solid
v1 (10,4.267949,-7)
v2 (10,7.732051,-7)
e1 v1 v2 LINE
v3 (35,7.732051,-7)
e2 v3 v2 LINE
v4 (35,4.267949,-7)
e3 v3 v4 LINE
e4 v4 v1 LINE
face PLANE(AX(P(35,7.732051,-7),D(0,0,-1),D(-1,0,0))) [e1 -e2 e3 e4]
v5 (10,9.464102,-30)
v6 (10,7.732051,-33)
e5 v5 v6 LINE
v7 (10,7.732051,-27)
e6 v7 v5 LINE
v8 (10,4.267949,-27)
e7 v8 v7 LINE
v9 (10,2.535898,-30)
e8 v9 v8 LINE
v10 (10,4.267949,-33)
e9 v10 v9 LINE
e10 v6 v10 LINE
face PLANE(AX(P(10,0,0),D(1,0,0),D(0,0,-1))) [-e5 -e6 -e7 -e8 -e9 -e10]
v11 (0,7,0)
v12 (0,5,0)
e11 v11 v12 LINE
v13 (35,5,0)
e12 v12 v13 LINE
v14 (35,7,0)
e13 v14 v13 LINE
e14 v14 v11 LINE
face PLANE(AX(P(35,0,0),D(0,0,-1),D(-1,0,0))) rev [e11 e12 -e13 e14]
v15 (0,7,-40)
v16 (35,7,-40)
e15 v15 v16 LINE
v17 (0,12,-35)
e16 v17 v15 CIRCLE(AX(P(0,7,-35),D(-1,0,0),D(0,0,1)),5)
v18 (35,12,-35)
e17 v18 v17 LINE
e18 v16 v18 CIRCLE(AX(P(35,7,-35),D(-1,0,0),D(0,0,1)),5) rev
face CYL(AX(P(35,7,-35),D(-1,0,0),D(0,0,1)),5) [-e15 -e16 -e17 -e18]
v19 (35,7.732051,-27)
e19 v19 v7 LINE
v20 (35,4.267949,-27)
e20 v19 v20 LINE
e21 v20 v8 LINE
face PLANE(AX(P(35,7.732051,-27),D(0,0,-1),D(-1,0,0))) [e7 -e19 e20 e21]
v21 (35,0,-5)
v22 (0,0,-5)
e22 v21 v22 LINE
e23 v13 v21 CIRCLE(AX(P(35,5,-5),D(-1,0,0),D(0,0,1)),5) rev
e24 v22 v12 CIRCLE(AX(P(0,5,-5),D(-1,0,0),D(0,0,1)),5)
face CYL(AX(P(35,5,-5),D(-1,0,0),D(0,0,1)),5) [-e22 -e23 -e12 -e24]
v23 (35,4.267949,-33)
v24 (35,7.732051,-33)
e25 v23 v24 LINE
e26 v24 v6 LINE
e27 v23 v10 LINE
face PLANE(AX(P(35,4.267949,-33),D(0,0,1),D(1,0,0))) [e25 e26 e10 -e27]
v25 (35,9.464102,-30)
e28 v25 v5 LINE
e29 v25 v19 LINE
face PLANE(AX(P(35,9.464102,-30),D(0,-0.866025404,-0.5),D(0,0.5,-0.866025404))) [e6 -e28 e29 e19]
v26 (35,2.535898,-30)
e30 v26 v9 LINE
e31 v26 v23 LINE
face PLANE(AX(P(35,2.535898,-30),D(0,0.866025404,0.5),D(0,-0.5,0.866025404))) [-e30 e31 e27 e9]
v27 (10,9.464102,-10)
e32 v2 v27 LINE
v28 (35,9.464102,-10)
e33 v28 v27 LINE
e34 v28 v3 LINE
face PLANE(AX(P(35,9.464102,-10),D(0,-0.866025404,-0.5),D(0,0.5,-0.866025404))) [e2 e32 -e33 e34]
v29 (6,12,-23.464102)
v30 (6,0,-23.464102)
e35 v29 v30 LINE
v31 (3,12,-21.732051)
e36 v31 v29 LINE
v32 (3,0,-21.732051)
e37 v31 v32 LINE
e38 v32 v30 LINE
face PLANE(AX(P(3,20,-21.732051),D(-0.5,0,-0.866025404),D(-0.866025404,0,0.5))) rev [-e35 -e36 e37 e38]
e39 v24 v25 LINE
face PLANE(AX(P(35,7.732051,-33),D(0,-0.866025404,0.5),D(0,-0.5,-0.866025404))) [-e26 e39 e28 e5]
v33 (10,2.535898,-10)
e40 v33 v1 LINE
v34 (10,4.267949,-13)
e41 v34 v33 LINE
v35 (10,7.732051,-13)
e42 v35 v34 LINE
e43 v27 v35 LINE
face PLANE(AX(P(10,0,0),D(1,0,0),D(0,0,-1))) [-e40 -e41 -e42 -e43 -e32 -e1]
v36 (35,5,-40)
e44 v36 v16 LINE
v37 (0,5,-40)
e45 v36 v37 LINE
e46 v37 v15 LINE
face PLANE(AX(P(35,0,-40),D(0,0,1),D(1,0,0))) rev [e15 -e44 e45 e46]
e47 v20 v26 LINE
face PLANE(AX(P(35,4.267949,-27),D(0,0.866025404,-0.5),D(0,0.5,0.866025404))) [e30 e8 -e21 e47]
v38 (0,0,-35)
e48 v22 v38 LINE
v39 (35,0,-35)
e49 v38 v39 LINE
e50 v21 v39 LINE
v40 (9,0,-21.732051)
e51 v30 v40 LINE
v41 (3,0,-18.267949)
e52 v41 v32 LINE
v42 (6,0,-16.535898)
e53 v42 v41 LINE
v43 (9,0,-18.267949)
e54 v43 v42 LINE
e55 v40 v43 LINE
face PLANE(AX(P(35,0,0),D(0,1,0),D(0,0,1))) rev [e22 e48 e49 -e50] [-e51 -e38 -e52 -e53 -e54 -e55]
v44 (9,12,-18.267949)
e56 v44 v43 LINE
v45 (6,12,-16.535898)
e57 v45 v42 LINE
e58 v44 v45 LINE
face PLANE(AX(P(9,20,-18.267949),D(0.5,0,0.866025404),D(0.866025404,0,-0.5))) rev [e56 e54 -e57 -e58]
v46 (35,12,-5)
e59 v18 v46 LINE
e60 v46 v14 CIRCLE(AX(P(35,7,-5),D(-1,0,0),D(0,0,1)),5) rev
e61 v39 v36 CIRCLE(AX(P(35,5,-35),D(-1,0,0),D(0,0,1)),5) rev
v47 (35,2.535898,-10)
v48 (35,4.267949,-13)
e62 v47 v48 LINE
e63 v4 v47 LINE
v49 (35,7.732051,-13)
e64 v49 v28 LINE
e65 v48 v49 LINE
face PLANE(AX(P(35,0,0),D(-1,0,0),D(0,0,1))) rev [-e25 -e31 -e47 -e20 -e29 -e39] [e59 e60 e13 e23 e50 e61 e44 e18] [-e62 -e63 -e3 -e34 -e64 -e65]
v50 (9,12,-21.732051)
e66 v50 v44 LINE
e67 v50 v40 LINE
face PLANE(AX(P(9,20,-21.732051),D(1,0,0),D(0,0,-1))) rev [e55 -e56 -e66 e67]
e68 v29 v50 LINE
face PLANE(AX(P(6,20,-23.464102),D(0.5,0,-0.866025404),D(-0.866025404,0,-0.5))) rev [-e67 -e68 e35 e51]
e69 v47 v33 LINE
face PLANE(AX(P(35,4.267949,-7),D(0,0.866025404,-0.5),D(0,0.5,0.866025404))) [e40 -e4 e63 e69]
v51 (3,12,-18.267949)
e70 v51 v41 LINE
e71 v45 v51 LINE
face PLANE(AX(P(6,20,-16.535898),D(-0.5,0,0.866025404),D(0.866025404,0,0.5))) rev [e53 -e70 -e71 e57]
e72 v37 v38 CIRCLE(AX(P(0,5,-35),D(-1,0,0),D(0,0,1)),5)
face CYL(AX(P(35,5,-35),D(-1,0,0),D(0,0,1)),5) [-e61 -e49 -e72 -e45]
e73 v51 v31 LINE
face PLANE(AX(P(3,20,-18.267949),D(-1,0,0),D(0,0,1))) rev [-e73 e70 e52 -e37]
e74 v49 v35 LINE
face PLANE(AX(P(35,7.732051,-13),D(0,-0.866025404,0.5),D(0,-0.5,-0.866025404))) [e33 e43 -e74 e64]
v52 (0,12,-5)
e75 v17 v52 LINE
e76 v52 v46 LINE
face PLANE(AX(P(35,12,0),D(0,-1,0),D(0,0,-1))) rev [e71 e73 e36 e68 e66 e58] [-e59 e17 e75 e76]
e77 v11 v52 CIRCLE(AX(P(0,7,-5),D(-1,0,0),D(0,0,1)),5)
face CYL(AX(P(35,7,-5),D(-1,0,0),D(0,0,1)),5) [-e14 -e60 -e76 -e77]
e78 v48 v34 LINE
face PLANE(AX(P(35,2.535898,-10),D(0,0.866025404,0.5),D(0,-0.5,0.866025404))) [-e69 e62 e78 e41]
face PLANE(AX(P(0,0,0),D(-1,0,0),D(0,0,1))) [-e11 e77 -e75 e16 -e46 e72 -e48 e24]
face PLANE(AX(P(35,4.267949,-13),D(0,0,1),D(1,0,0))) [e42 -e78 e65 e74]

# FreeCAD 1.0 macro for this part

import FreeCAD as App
import Part
import Sketcher

V = App.Vector
Q = App.Units.Quantity


def edges_at(feature, points):
    """Names of the edges that pass closest to the given points."""
    edges = feature.Shape.Edges
    near = lambda p: min(range(len(edges)), key=lambda i: edges[i].distToShape(Part.Vertex(*p))[0])
    return sorted({f"Edge{near(p) + 1}" for p in points})

doc = App.newDocument("Part")
body = doc.addObject("PartDesign::Body", "Body")

sketch1 = body.newObject("Sketcher::SketchObject", "Sketch")
sketch1.AttachmentSupport = (doc.getObject("YZ_Plane"), [""])
sketch1.MapMode = "FlatFace"
sketch1.addGeometry([
    Part.LineSegment(V(12, 0, 0), V(0, 0, 0)),
    Part.LineSegment(V(0, 0, 0), V(0, -40, 0)),
    Part.LineSegment(V(0, -40, 0), V(12, -40, 0)),
    Part.LineSegment(V(12, -40, 0), V(12, 0, 0)),
    Part.LineSegment(V(7.732051, -7, 0), V(9.464102, -10, 0)),
    Part.LineSegment(V(9.464102, -10, 0), V(7.732051, -13, 0)),
    Part.LineSegment(V(7.732051, -13, 0), V(4.267949, -13, 0)),
    Part.LineSegment(V(4.267949, -13, 0), V(2.535898, -10, 0)),
    Part.LineSegment(V(2.535898, -10, 0), V(4.267949, -7, 0)),
    Part.LineSegment(V(4.267949, -7, 0), V(7.732051, -7, 0)),
    Part.LineSegment(V(7.732051, -27, 0), V(9.464102, -30, 0)),
    Part.LineSegment(V(9.464102, -30, 0), V(7.732051, -33, 0)),
    Part.LineSegment(V(7.732051, -33, 0), V(4.267949, -33, 0)),
    Part.LineSegment(V(4.267949, -33, 0), V(2.535898, -30, 0)),
    Part.LineSegment(V(2.535898, -30, 0), V(4.267949, -27, 0)),
    Part.LineSegment(V(4.267949, -27, 0), V(7.732051, -27, 0)),
], False)
sketch1.addConstraint([
    Sketcher.Constraint("Coincident", 0, 2, 1, 1),
    Sketcher.Constraint("Coincident", 1, 2, 2, 1),
    Sketcher.Constraint("Coincident", 2, 2, 3, 1),
    Sketcher.Constraint("Coincident", 3, 2, 0, 1),
    Sketcher.Constraint("Coincident", 4, 2, 5, 1),
    Sketcher.Constraint("Coincident", 5, 2, 6, 1),
    Sketcher.Constraint("Coincident", 6, 2, 7, 1),
    Sketcher.Constraint("Coincident", 7, 2, 8, 1),
    Sketcher.Constraint("Coincident", 8, 2, 9, 1),
    Sketcher.Constraint("Coincident", 9, 2, 4, 1),
    Sketcher.Constraint("Coincident", 10, 2, 11, 1),
    Sketcher.Constraint("Coincident", 11, 2, 12, 1),
    Sketcher.Constraint("Coincident", 12, 2, 13, 1),
    Sketcher.Constraint("Coincident", 13, 2, 14, 1),
    Sketcher.Constraint("Coincident", 14, 2, 15, 1),
    Sketcher.Constraint("Coincident", 15, 2, 10, 1),
    Sketcher.Constraint("Horizontal", 0),
    Sketcher.Constraint("Vertical", 1),
    Sketcher.Constraint("Horizontal", 2),
    Sketcher.Constraint("Vertical", 3),
    Sketcher.Constraint("Horizontal", 6),
    Sketcher.Constraint("Horizontal", 9),
    Sketcher.Constraint("Horizontal", 12),
    Sketcher.Constraint("Horizontal", 15),
    Sketcher.Constraint("Coincident", 0, 2, -1, 1),
    Sketcher.Constraint("Parallel", 4, 7),
    Sketcher.Constraint("Parallel", 5, 8),
    Sketcher.Constraint("Parallel", 7, 10),
    Sketcher.Constraint("Parallel", 8, 11),
    Sketcher.Constraint("Parallel", 10, 13),
    Sketcher.Constraint("Parallel", 11, 14),
    Sketcher.Constraint("Horizontal", 4, 2, 7, 2),
    Sketcher.Constraint("Horizontal", 10, 2, 13, 2),
    Sketcher.Constraint("Vertical", 6, 2, 8, 2),
    Sketcher.Constraint("Vertical", 5, 2, 9, 2),
    Sketcher.Constraint("Vertical", 4, 2, 10, 2),
    Sketcher.Constraint("Vertical", 9, 2, 11, 2),
    Sketcher.Constraint("Vertical", 8, 2, 12, 2),
    Sketcher.Constraint("Vertical", 12, 2, 14, 2),
    Sketcher.Constraint("DistanceX", 0, 2, 0, 1, 12.0),
    Sketcher.Constraint("DistanceY", 1, 2, 1, 1, 40.0),
    Sketcher.Constraint("Angle", 4, Q("-60 deg")),
    Sketcher.Constraint("DistanceY", 4, 2, -1, 1, 10.0),
    Sketcher.Constraint("DistanceY", 5, 2, -1, 1, 13.0),
    Sketcher.Constraint("DistanceY", 10, 2, -1, 1, 30.0),
    Sketcher.Constraint("DistanceX", 6, 2, 6, 1, 3.464102),
    Sketcher.Constraint("DistanceX", -1, 1, 4, 2, 9.464102),
])
pad1 = body.newObject("PartDesign::Pad", "Pad")
pad1.Profile = sketch1
pad1.Length = 35
doc.recompute()

fillet = body.newObject("PartDesign::Fillet", "Fillet")
fillet.Base = (pad1, edges_at(pad1, [
    (17.5, 12, 0),
    (17.5, 12, -40),
    (17.5, 0, -40),
    (17.5, 0, 0),
]))
fillet.Radius = 5

sketch2 = body.newObject("Sketcher::SketchObject", "Sketch001")
sketch2.AttachmentSupport = (doc.getObject("XZ_Plane"), [""])
sketch2.MapMode = "FlatFace"
sketch2.addGeometry([
    Part.LineSegment(V(6, -16.535898, 0), V(3, -18.267949, 0)),
    Part.LineSegment(V(3, -18.267949, 0), V(3, -21.732051, 0)),
    Part.LineSegment(V(3, -21.732051, 0), V(6, -23.464102, 0)),
    Part.LineSegment(V(6, -23.464102, 0), V(9, -21.732051, 0)),
    Part.LineSegment(V(9, -21.732051, 0), V(9, -18.267949, 0)),
    Part.LineSegment(V(9, -18.267949, 0), V(6, -16.535898, 0)),
], False)
sketch2.addConstraint([
    Sketcher.Constraint("Coincident", 0, 2, 1, 1),
    Sketcher.Constraint("Coincident", 1, 2, 2, 1),
    Sketcher.Constraint("Coincident", 2, 2, 3, 1),
    Sketcher.Constraint("Coincident", 3, 2, 4, 1),
    Sketcher.Constraint("Coincident", 4, 2, 5, 1),
    Sketcher.Constraint("Coincident", 5, 2, 0, 1),
    Sketcher.Constraint("Vertical", 1),
    Sketcher.Constraint("Vertical", 4),
    Sketcher.Constraint("Parallel", 0, 3),
    Sketcher.Constraint("Parallel", 2, 5),
    Sketcher.Constraint("Horizontal", 1, 2, 3, 2),
    Sketcher.Constraint("Horizontal", 0, 2, 4, 2),
    Sketcher.Constraint("Vertical", 2, 2, 5, 2),
    Sketcher.Constraint("Angle", 0, Q("-150 deg")),
    Sketcher.Constraint("DistanceX", -1, 1, 0, 2, 3.0),
    Sketcher.Constraint("DistanceX", -1, 1, 2, 2, 6.0),
    Sketcher.Constraint("DistanceY", 1, 2, 1, 1, 3.464102),
    Sketcher.Constraint("DistanceY", 2, 2, -1, 1, 23.464102),
])
pocket1 = body.newObject("PartDesign::Pocket", "Pocket")
pocket1.Profile = sketch2
pocket1.Length = 20

sketch3 = body.newObject("Sketcher::SketchObject", "Sketch002")
sketch3.AttachmentSupport = (doc.getObject("YZ_Plane"), [""])
sketch3.MapMode = "FlatFace"
sketch3.addGeometry([
    Part.LineSegment(V(7.732051, -27, 0), V(9.464102, -30, 0)),
    Part.LineSegment(V(9.464102, -30, 0), V(7.732051, -33, 0)),
    Part.LineSegment(V(7.732051, -33, 0), V(4.267949, -33, 0)),
    Part.LineSegment(V(4.267949, -33, 0), V(2.535898, -30, 0)),
    Part.LineSegment(V(2.535898, -30, 0), V(4.267949, -27, 0)),
    Part.LineSegment(V(4.267949, -27, 0), V(7.732051, -27, 0)),
    Part.LineSegment(V(4.267949, -7, 0), V(7.732051, -7, 0)),
    Part.LineSegment(V(7.732051, -7, 0), V(9.464102, -10, 0)),
    Part.LineSegment(V(9.464102, -10, 0), V(7.732051, -13, 0)),
    Part.LineSegment(V(7.732051, -13, 0), V(4.267949, -13, 0)),
    Part.LineSegment(V(4.267949, -13, 0), V(2.535898, -10, 0)),
    Part.LineSegment(V(2.535898, -10, 0), V(4.267949, -7, 0)),
], False)
sketch3.addConstraint([
    Sketcher.Constraint("Coincident", 0, 2, 1, 1),
    Sketcher.Constraint("Coincident", 1, 2, 2, 1),
    Sketcher.Constraint("Coincident", 2, 2, 3, 1),
    Sketcher.Constraint("Coincident", 3, 2, 4, 1),
    Sketcher.Constraint("Coincident", 4, 2, 5, 1),
    Sketcher.Constraint("Coincident", 5, 2, 0, 1),
    Sketcher.Constraint("Coincident", 6, 2, 7, 1),
    Sketcher.Constraint("Coincident", 7, 2, 8, 1),
    Sketcher.Constraint("Coincident", 8, 2, 9, 1),
    Sketcher.Constraint("Coincident", 9, 2, 10, 1),
    Sketcher.Constraint("Coincident", 10, 2, 11, 1),
    Sketcher.Constraint("Coincident", 11, 2, 6, 1),
    Sketcher.Constraint("Horizontal", 2),
    Sketcher.Constraint("Horizontal", 5),
    Sketcher.Constraint("Horizontal", 6),
    Sketcher.Constraint("Horizontal", 9),
    Sketcher.Constraint("Parallel", 0, 3),
    Sketcher.Constraint("Parallel", 1, 4),
    Sketcher.Constraint("Parallel", 3, 7),
    Sketcher.Constraint("Parallel", 4, 8),
    Sketcher.Constraint("Parallel", 7, 10),
    Sketcher.Constraint("Parallel", 8, 11),
    Sketcher.Constraint("Horizontal", 0, 2, 3, 2),
    Sketcher.Constraint("Horizontal", 7, 2, 10, 2),
    Sketcher.Constraint("Vertical", 2, 2, 4, 2),
    Sketcher.Constraint("Vertical", 1, 2, 5, 2),
    Sketcher.Constraint("Vertical", 5, 2, 6, 2),
    Sketcher.Constraint("Vertical", 0, 2, 7, 2),
    Sketcher.Constraint("Vertical", 6, 2, 8, 2),
    Sketcher.Constraint("Vertical", 4, 2, 9, 2),
    Sketcher.Constraint("Angle", 0, Q("-60 deg")),
    Sketcher.Constraint("DistanceY", 0, 2, -1, 1, 30.0),
    Sketcher.Constraint("DistanceY", 1, 2, -1, 1, 33.0),
    Sketcher.Constraint("DistanceY", 6, 2, -1, 1, 7.0),
    Sketcher.Constraint("DistanceX", 2, 2, 2, 1, 3.464102),
    Sketcher.Constraint("DistanceX", -1, 1, 0, 2, 9.464102),
])
pad2 = body.newObject("PartDesign::Pad", "Pad001")
pad2.Profile = sketch3
pad2.Length = 10

doc.recompute()
